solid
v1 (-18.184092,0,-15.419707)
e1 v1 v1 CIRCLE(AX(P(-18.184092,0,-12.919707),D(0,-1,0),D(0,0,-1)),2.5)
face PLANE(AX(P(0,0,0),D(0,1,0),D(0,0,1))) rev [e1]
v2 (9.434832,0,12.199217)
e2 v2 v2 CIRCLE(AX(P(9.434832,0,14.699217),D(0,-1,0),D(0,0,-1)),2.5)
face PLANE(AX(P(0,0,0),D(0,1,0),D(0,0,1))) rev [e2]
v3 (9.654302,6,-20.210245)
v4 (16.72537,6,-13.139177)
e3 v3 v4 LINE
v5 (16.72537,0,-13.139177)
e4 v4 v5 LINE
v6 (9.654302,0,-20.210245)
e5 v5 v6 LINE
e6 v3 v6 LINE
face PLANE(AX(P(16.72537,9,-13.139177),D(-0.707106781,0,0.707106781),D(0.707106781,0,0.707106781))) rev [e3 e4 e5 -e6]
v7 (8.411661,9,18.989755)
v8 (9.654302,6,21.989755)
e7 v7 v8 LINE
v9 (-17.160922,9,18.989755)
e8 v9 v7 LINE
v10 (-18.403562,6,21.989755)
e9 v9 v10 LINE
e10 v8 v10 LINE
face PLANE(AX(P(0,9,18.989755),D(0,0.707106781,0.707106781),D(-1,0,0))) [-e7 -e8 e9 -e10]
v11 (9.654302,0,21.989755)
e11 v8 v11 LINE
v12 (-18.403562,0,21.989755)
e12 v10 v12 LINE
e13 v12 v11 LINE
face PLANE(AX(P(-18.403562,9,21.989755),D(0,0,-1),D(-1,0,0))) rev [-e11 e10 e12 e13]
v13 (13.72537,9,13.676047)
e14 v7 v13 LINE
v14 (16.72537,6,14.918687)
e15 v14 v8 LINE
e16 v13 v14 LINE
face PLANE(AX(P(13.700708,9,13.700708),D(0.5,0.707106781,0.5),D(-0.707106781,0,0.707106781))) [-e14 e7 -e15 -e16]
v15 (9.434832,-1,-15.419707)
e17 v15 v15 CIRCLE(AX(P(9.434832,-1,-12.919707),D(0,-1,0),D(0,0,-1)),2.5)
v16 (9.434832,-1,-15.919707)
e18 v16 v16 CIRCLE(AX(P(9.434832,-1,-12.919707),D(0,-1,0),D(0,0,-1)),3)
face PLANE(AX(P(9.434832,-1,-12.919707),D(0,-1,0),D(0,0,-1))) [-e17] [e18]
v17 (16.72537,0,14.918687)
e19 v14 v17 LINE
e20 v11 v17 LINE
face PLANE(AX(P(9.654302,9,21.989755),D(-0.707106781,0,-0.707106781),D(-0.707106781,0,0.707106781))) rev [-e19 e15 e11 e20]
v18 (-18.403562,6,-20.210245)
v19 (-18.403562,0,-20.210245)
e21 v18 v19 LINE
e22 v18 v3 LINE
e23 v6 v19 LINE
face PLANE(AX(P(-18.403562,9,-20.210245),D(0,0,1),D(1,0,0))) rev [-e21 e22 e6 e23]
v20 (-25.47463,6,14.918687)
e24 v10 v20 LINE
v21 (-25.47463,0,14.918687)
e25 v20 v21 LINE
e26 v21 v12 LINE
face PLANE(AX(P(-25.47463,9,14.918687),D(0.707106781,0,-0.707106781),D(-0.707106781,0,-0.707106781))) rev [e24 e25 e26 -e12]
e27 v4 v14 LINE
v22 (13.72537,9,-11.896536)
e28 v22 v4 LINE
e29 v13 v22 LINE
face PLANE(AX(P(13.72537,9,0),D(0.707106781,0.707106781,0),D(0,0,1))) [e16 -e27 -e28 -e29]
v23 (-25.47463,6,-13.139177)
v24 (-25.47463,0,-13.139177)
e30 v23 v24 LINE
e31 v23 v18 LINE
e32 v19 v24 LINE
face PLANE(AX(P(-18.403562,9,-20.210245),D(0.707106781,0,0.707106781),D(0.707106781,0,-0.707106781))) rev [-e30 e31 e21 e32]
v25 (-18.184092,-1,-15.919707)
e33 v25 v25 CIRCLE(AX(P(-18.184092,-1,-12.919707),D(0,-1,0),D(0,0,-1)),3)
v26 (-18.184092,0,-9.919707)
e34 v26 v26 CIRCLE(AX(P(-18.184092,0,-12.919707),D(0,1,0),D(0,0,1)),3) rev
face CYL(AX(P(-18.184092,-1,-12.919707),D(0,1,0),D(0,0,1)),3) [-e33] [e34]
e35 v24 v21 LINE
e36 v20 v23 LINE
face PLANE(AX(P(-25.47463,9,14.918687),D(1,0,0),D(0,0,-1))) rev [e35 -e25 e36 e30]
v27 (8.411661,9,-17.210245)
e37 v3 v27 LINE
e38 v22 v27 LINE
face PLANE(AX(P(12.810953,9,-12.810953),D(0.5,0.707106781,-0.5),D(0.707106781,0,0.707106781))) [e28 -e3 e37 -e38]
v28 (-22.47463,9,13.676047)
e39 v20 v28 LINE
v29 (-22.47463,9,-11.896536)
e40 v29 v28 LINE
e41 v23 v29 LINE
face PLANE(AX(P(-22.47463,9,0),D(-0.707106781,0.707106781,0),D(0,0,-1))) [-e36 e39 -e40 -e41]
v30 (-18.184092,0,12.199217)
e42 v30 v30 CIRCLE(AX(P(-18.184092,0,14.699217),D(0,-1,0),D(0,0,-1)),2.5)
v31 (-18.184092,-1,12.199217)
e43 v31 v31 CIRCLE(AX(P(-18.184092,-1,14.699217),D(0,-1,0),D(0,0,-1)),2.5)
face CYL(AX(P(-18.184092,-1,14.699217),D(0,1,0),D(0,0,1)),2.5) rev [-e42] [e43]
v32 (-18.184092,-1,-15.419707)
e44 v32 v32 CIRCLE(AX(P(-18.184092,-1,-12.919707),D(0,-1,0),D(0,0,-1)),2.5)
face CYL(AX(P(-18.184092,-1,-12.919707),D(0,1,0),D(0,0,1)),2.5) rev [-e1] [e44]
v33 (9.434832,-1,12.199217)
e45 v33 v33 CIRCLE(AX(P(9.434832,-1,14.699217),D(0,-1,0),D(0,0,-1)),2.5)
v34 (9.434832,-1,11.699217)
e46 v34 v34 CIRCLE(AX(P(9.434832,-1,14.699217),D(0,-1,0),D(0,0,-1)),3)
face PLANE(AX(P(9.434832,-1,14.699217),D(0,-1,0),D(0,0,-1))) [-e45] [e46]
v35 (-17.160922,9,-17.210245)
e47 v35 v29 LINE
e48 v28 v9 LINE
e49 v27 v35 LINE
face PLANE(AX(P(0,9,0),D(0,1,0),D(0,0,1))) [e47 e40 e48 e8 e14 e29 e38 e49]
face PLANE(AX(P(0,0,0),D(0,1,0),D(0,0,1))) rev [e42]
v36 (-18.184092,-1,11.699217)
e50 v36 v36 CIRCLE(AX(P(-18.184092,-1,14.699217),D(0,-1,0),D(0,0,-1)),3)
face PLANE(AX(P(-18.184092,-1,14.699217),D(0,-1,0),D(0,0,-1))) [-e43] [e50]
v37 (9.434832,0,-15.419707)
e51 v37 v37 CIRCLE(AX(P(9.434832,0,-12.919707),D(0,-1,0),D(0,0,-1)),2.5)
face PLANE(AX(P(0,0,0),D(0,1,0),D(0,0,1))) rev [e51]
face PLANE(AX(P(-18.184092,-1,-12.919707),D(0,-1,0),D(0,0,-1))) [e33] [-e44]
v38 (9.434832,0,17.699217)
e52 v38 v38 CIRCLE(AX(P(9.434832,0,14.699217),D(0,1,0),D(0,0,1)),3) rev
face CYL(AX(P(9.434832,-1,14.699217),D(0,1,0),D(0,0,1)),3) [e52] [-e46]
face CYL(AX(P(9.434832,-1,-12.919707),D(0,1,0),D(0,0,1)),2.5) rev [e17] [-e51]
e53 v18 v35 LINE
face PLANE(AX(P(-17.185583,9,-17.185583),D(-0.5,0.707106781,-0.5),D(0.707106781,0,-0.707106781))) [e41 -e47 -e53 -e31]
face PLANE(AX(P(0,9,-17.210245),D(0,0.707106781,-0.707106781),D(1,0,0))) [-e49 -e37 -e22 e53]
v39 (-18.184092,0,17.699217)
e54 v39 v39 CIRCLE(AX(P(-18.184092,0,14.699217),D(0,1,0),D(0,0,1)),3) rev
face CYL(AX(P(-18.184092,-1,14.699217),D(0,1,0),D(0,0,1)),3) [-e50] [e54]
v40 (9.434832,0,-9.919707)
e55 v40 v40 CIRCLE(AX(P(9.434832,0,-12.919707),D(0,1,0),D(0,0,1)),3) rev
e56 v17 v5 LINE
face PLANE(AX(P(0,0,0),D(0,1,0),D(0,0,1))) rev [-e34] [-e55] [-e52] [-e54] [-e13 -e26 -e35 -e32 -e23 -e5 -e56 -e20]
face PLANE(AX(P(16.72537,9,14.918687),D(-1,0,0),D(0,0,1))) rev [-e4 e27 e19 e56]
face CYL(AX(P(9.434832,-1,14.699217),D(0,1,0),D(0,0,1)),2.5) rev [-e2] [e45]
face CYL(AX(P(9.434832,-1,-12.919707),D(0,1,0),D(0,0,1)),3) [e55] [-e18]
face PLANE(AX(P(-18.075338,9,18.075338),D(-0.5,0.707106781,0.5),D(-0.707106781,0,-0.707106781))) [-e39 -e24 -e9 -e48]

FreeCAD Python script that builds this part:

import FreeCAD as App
import Part
import Sketcher
from FreeCAD import Vector


def edges_at(feature, points):
    """Names of the edges that pass closest to the given points."""
    edges = feature.Shape.Edges
    near = lambda p: min(range(len(edges)), key=lambda i: edges[i].distToShape(Part.Vertex(*p))[0])
    return sorted({f"Edge{near(p) + 1}" for p in points})

doc = App.newDocument("Part")
body = doc.addObject("PartDesign::Body", "Body")

sketch1 = doc.addObject("Sketcher::SketchObject", "Sketch")
body.addObject(sketch1)
sketch1.AttachmentSupport = (doc.XZ_Plane, [""])
sketch1.MapMode = "FlatFace"
sketch1.addGeometry([
    Part.LineSegment(Vector(-18, -20, 0), Vector(-25, -13, 0)),
    Part.LineSegment(Vector(-25, -13, 0), Vector(-25, 15, 0)),
    Part.LineSegment(Vector(-25, 15, 0), Vector(-18, 22, 0)),
    Part.LineSegment(Vector(-18, 22, 0), Vector(10, 22, 0)),
    Part.LineSegment(Vector(10, 22, 0), Vector(17, 15, 0)),
    Part.LineSegment(Vector(17, 15, 0), Vector(17, -13, 0)),
    Part.LineSegment(Vector(17, -13, 0), Vector(10, -20, 0)),
    Part.LineSegment(Vector(10, -20, 0), Vector(-18, -20, 0)),
], False)
sketch1.addConstraint([
    Sketcher.Constraint("Coincident", 0, 2, 1, 1),
    Sketcher.Constraint("Coincident", 1, 2, 2, 1),
    Sketcher.Constraint("Coincident", 2, 2, 3, 1),
    Sketcher.Constraint("Coincident", 3, 2, 4, 1),
    Sketcher.Constraint("Coincident", 4, 2, 5, 1),
    Sketcher.Constraint("Coincident", 5, 2, 6, 1),
    Sketcher.Constraint("Coincident", 6, 2, 7, 1),
    Sketcher.Constraint("Coincident", 7, 2, 0, 1),
    Sketcher.Constraint("Vertical", 1),
    Sketcher.Constraint("Horizontal", 3),
    Sketcher.Constraint("Vertical", 5),
    Sketcher.Constraint("Horizontal", 7),
    Sketcher.Constraint("Perpendicular", 0, 2),
    Sketcher.Constraint("Perpendicular", 2, 4),
    Sketcher.Constraint("Perpendicular", 4, 6),
    Sketcher.Constraint("Horizontal", 1, 2, 4, 2),
    Sketcher.Constraint("Horizontal", 0, 2, 5, 2),
    Sketcher.Constraint("Vertical", 3, 2, 6, 2),
    Sketcher.Constraint("Vertical", 2, 2, 7, 2),
    Sketcher.Constraint("Equal", 7, 1),
    Sketcher.Constraint("Distance", 0, 10.0),
    Sketcher.Constraint("DistanceX", 1, 2, 4, 2, 42.2),
    Sketcher.Constraint("DistanceX", 0, 2, -1, 1, 25.47463),
    Sketcher.Constraint("DistanceY", 0, 2, -1, 1, 13.139177),
])
pad1 = doc.addObject("PartDesign::Pad", "Pad")
body.addObject(pad1)
pad1.Profile = sketch1
pad1.Length = 9
pad1.Reversed = True
doc.recompute()

chamfer = doc.addObject("PartDesign::Chamfer", "Chamfer")
body.addObject(chamfer)
chamfer.Base = (pad1, edges_at(pad1, [
    (-25.475, 9, 0.89),
    (-21.939, 9, 18.454),
    (-4.375, 9, 21.99),
    (13.19, 9, 18.454),
    (16.725, 9, 0.89),
    (13.19, 9, -16.675),
    (-4.375, 9, -20.21),
    (-21.939, 9, -16.675),
]))
chamfer.Size = 3

sketch2 = doc.addObject("Sketcher::SketchObject", "Sketch001")
body.addObject(sketch2)
sketch2.AttachmentSupport = (doc.XZ_Plane, [""])
sketch2.MapMode = "FlatFace"
sketch2.addGeometry([
    Part.Circle(Vector(9.4, 14.7, 0), Vector(0, 0, 1), 3),
    Part.Circle(Vector(9.4, 14.7, 0), Vector(0, 0, 1), 2.5),
    Part.Circle(Vector(9.4, -12.9, 0), Vector(0, 0, 1), 3),
    Part.Circle(Vector(9.4, -12.9, 0), Vector(0, 0, 1), 2.5),
    Part.Circle(Vector(-18.2, -12.9, 0), Vector(0, 0, 1), 3),
    Part.Circle(Vector(-18.2, -12.9, 0), Vector(0, 0, 1), 2.5),
    Part.Circle(Vector(-18.2, 14.7, 0), Vector(0, 0, 1), 3),
    Part.Circle(Vector(-18.2, 14.7, 0), Vector(0, 0, 1), 2.5),
], False)
sketch2.addConstraint([
    Sketcher.Constraint("Coincident", 1, 3, 0, 3),
    Sketcher.Constraint("Coincident", 3, 3, 2, 3),
    Sketcher.Constraint("Coincident", 5, 3, 4, 3),
    Sketcher.Constraint("Coincident", 7, 3, 6, 3),
    Sketcher.Constraint("Equal", 0, 2),
    Sketcher.Constraint("Equal", 1, 3),
    Sketcher.Constraint("Equal", 2, 4),
    Sketcher.Constraint("Equal", 3, 5),
    Sketcher.Constraint("Equal", 4, 6),
    Sketcher.Constraint("Equal", 5, 7),
    Sketcher.Constraint("Horizontal", 3, 3, 4, 3),
    Sketcher.Constraint("Horizontal", 1, 3, 6, 3),
    Sketcher.Constraint("Vertical", 1, 3, 2, 3),
    Sketcher.Constraint("Vertical", 5, 3, 6, 3),
    Sketcher.Constraint("Diameter", 0, 6.0),
    Sketcher.Constraint("Diameter", 1, 5.0),
    Sketcher.Constraint("DistanceX", -1, 1, 0, 3, 9.434832),
    Sketcher.Constraint("DistanceX", 4, 3, -1, 1, 18.184092),
    Sketcher.Constraint("DistanceY", -1, 1, 0, 3, 14.699217),
    Sketcher.Constraint("DistanceY", 2, 3, -1, 1, 12.919707),
])
pad2 = doc.addObject("PartDesign::Pad", "Pad001")
body.addObject(pad2)
pad2.Profile = sketch2
pad2.Length = 1

doc.recompute()
